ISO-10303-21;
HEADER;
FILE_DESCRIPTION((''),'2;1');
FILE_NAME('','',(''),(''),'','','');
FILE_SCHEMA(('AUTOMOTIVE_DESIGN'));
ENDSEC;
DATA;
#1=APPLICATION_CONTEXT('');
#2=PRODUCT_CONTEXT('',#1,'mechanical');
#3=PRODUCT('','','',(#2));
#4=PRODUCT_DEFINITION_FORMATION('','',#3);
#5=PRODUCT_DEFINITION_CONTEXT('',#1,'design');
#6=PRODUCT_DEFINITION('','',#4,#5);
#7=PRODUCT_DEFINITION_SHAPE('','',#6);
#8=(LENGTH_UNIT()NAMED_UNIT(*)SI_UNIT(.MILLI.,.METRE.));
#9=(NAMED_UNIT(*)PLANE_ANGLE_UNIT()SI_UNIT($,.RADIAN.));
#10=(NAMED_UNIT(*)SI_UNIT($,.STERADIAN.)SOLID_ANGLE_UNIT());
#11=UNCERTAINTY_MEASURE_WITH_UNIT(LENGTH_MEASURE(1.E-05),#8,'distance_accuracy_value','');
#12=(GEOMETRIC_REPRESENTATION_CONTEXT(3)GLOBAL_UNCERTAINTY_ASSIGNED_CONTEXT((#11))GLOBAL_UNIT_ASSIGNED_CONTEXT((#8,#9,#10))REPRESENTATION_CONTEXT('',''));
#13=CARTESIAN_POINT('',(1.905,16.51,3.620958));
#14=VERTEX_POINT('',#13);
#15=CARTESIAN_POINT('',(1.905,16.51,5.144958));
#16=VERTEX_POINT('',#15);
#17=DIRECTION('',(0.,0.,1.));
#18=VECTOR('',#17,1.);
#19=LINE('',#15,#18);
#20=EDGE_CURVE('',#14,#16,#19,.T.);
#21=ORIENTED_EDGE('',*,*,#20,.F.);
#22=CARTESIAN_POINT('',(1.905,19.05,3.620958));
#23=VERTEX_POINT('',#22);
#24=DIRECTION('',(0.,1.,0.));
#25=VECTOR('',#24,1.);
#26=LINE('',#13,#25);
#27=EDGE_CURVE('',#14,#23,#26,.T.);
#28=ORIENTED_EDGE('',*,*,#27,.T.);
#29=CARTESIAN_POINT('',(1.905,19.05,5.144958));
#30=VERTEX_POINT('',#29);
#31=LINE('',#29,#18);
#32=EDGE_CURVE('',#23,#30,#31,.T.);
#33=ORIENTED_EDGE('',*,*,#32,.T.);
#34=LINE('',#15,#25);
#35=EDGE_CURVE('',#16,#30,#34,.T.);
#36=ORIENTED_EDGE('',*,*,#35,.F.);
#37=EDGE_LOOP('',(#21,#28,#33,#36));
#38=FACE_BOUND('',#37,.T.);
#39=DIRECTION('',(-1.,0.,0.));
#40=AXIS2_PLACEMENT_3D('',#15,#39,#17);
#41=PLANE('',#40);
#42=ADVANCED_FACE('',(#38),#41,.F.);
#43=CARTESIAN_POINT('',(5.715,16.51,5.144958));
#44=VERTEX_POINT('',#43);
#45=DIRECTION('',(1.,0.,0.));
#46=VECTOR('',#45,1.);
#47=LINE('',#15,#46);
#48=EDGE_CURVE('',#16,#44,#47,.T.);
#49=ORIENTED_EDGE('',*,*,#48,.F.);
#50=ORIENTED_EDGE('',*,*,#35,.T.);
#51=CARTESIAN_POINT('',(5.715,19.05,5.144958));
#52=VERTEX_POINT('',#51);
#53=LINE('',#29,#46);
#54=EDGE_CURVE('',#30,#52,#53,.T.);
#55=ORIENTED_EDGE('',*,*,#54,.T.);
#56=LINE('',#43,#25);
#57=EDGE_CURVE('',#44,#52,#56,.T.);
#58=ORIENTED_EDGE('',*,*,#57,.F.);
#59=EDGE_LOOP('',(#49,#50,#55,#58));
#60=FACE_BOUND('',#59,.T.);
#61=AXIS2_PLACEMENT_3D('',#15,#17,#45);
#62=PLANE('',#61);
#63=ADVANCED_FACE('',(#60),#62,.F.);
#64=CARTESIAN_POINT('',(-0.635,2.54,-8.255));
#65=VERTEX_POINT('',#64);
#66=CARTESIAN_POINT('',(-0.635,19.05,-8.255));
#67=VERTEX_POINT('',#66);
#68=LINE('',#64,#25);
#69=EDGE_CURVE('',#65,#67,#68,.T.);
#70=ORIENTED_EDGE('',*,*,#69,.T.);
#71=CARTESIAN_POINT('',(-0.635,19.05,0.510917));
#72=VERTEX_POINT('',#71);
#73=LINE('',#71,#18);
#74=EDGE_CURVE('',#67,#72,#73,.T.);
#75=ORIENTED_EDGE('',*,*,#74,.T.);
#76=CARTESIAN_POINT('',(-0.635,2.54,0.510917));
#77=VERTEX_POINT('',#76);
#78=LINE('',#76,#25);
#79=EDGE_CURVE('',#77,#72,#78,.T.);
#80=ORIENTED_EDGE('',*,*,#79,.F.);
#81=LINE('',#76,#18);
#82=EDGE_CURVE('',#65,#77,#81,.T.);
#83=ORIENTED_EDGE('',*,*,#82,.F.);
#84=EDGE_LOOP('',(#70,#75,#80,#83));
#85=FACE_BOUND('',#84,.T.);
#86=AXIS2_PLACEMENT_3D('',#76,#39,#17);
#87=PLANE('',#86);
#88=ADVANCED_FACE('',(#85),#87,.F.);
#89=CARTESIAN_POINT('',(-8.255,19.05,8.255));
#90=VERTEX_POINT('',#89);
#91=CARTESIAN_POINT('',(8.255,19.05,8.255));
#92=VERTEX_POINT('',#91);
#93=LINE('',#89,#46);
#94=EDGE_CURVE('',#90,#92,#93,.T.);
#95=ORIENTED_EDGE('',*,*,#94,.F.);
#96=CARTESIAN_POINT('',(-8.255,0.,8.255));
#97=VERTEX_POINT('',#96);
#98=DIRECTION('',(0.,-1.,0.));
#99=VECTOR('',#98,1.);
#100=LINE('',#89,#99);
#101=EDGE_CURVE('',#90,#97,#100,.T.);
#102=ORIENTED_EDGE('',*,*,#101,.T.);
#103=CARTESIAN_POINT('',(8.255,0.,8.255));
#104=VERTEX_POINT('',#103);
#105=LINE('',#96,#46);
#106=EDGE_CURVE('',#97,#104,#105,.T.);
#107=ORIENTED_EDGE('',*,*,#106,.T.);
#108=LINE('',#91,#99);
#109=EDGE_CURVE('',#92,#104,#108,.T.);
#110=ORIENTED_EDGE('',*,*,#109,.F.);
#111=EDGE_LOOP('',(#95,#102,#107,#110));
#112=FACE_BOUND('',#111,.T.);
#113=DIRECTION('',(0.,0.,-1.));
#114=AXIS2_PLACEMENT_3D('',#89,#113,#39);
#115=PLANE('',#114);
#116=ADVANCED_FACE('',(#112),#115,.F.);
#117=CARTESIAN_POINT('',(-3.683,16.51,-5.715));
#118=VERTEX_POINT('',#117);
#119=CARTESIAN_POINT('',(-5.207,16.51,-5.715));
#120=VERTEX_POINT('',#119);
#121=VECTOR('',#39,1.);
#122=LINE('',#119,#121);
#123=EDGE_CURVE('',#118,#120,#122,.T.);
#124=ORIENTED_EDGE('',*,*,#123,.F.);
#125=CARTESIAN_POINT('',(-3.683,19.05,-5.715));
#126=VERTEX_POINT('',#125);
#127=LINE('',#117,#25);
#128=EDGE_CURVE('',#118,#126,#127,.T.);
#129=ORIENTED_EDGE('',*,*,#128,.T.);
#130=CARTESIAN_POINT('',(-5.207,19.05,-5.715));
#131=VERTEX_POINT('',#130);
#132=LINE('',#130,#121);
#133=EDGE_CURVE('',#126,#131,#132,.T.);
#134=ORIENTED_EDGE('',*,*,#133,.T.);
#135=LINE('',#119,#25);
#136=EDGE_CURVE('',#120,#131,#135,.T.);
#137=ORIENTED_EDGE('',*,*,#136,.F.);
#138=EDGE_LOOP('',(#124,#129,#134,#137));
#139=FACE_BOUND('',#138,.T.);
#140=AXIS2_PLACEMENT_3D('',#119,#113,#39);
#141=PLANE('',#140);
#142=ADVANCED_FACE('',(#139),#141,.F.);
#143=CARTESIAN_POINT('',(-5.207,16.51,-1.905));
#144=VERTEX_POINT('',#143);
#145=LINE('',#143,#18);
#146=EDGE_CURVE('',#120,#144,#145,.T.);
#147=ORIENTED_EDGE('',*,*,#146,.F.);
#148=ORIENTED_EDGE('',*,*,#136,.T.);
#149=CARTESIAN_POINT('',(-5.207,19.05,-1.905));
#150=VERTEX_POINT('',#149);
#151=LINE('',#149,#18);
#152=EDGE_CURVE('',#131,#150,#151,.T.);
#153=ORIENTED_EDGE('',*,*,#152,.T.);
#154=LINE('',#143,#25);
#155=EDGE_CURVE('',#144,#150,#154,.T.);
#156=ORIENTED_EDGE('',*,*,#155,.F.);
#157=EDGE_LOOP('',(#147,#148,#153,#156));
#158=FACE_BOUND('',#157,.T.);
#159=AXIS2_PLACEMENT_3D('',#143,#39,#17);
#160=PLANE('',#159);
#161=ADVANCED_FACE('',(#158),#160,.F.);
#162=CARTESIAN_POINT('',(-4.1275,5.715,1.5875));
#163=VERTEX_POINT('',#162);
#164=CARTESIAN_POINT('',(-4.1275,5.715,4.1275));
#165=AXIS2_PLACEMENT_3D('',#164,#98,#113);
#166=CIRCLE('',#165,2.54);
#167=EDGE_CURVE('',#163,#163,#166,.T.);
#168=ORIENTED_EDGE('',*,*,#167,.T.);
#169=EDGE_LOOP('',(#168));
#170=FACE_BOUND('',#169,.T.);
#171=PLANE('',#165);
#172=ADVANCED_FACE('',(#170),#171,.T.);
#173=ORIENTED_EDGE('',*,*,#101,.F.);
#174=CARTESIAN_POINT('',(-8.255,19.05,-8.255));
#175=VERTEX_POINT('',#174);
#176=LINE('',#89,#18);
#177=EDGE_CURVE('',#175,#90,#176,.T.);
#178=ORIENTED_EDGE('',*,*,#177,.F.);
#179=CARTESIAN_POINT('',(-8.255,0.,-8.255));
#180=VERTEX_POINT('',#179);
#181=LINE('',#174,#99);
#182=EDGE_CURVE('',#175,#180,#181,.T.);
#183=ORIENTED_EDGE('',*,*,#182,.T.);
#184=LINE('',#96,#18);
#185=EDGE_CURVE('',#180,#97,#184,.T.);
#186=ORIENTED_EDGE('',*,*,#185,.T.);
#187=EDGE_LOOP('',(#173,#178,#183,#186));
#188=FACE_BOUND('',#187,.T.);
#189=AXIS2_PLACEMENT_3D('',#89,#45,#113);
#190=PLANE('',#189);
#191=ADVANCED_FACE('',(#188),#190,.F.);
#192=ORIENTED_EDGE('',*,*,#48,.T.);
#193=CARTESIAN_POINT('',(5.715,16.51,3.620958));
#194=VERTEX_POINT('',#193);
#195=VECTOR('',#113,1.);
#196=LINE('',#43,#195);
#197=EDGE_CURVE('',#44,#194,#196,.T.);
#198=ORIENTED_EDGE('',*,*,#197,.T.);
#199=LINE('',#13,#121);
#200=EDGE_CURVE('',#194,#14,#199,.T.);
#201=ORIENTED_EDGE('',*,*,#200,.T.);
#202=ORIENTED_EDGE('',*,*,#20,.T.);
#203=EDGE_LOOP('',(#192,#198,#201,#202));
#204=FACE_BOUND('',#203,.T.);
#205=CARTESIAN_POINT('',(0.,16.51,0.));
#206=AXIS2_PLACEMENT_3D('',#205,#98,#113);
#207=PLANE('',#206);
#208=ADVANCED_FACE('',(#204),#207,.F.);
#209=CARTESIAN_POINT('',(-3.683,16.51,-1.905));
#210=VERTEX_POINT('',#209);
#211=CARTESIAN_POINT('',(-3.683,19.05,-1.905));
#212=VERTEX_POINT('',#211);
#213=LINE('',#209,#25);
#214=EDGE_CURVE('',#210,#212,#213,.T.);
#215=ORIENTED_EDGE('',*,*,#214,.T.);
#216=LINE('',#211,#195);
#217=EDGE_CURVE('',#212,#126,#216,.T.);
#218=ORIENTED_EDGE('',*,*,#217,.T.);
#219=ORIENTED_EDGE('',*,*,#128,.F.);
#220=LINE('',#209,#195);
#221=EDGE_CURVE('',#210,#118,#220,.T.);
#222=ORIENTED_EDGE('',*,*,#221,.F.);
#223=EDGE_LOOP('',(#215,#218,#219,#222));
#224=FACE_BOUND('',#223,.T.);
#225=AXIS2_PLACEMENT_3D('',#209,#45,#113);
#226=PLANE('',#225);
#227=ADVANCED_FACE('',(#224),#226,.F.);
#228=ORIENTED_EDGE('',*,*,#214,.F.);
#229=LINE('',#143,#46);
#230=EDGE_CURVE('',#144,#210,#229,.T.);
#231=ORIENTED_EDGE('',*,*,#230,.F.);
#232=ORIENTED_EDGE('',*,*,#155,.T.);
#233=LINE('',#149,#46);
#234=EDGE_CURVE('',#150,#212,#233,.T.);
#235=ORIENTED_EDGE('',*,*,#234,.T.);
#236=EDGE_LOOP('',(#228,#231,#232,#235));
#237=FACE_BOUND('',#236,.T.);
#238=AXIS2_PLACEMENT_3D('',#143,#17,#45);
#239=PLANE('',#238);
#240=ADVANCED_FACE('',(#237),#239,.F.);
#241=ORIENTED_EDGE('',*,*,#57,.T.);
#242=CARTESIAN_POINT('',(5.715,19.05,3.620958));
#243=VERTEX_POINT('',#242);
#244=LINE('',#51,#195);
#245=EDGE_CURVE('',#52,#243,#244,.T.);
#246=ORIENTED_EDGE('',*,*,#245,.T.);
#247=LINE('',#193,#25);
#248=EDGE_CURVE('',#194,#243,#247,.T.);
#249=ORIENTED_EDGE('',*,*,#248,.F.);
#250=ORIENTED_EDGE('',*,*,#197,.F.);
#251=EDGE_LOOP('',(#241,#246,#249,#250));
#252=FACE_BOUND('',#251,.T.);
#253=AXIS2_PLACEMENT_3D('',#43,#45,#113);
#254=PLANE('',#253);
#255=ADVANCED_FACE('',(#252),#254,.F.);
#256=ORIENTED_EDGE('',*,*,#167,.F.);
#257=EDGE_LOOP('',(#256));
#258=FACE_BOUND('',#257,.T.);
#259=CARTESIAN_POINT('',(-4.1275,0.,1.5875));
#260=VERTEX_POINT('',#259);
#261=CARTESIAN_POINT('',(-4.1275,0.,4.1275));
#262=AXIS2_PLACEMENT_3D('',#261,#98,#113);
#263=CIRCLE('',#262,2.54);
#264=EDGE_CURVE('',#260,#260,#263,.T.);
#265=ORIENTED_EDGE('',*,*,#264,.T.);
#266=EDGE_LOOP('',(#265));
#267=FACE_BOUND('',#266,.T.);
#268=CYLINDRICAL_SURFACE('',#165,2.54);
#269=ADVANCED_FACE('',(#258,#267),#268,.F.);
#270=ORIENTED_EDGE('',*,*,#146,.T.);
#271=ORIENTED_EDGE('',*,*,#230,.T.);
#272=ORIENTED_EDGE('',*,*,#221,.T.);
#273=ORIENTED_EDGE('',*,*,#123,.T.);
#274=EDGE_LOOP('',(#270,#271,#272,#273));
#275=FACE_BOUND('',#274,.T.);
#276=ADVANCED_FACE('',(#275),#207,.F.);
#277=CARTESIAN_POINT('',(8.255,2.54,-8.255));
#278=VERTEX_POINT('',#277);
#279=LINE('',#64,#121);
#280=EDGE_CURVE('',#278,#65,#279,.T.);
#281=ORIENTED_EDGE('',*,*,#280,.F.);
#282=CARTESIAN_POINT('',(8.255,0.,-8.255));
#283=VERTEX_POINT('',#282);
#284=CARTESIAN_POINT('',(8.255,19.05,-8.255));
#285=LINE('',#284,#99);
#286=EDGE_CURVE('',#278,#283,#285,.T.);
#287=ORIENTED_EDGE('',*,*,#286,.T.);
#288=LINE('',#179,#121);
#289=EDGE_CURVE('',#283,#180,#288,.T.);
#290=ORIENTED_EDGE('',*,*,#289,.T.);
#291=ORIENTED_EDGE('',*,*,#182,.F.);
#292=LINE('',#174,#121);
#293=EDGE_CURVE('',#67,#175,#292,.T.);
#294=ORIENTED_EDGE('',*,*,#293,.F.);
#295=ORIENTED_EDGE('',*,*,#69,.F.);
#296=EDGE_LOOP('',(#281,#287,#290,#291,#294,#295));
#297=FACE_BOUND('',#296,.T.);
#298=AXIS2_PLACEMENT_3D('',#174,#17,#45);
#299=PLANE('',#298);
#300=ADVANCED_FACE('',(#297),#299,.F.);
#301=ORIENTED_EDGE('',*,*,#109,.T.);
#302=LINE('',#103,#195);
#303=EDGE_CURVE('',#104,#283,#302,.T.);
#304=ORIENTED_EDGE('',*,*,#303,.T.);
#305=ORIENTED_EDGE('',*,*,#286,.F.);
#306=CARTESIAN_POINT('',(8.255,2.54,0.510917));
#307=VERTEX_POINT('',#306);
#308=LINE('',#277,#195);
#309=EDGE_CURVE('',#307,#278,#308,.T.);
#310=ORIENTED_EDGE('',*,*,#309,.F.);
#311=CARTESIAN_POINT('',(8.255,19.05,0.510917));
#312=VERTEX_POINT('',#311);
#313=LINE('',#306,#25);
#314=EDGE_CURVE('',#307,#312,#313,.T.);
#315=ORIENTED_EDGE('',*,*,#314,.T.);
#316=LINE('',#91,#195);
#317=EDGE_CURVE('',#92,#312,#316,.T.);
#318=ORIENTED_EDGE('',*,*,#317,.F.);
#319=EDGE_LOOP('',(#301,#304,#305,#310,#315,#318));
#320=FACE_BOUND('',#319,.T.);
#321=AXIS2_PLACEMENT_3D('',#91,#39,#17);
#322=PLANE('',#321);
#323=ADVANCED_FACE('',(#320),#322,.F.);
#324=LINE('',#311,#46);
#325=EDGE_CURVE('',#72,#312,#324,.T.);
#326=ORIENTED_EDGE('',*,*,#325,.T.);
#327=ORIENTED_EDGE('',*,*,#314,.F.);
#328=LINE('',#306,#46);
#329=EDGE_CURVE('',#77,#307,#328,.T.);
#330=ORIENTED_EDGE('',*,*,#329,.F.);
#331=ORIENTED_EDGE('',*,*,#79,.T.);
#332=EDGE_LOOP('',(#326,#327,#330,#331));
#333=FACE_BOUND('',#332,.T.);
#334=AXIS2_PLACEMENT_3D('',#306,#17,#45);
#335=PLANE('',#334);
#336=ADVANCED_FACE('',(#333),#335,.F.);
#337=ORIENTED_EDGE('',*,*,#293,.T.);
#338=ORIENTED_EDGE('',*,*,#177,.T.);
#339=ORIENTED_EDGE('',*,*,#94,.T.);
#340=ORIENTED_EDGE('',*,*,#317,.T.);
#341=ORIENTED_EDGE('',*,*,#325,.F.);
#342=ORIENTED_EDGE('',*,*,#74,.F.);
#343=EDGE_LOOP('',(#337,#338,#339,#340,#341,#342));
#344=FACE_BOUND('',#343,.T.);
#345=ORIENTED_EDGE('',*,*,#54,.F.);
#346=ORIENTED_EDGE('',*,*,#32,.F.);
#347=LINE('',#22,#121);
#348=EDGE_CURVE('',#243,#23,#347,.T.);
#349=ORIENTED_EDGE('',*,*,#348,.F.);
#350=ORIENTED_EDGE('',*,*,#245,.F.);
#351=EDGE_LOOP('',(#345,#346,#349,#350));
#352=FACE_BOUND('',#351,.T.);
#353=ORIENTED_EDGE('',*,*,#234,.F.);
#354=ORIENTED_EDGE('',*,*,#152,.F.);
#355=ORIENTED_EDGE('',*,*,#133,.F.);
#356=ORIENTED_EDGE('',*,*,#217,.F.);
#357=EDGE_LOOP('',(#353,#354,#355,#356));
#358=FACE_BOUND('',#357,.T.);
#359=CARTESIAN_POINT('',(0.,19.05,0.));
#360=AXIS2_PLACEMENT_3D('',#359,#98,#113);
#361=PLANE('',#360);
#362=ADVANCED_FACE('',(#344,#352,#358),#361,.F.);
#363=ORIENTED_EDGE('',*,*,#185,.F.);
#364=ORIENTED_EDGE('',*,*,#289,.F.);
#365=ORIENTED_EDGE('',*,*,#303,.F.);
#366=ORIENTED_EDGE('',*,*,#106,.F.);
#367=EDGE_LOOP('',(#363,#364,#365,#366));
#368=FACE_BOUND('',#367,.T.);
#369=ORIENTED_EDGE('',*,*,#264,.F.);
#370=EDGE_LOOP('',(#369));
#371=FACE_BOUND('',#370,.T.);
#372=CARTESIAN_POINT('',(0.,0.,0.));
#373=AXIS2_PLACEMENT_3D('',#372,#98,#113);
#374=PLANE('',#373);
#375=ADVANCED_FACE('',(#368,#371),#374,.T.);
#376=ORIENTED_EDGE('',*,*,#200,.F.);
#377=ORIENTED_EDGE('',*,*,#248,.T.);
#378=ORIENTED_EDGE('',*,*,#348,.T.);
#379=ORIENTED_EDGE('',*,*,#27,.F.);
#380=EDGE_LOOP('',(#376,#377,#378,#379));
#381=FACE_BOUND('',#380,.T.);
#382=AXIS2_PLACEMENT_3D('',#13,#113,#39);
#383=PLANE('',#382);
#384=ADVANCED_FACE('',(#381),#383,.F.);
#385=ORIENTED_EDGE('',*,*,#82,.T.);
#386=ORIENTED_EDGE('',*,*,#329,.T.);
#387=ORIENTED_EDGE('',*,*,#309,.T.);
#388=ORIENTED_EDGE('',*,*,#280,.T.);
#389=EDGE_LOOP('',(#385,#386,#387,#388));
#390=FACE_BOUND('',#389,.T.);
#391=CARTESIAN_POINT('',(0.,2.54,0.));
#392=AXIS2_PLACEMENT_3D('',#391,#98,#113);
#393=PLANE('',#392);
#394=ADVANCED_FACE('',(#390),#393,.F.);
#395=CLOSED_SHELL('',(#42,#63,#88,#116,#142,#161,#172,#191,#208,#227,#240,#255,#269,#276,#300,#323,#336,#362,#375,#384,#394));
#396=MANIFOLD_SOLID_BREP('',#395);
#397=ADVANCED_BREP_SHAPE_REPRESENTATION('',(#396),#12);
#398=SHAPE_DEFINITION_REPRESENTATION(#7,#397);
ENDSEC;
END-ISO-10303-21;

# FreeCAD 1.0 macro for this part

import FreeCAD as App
import Part
import Sketcher
Q = App.Units.Quantity

doc = App.newDocument("Part")
params = doc.addObject("Spreadsheet::Sheet", "Params")
for row, (alias, value) in enumerate([
    ("sketch1_width", "0.65 in"),
    ("pad1_length", "0.75 in"),
    ("sketch2_diameter", "0.2 in"),
    ("pocket1_length", "0.225 in"),
    ("sketch3_width", "0.35 in"),
    ("pocket2_length", "0.65 in"),
    ("sketch4_width", "0.06 in"),
    ("sketch4_width2", "0.15 in"),
    ("pocket3_length", "0.1 in"),
], start=1):
    params.set(f"A{row}", alias)
    params.set(f"B{row}", "=" + value)
    params.setAlias(f"B{row}", alias)

body = doc.addObject("PartDesign::Body", "Body")

sketch1 = doc.addObject("Sketcher::SketchObject", "Sketch")
body.addObject(sketch1)
sketch1.AttachmentSupport = (doc.XZ_Plane, [""])
sketch1.MapMode = "FlatFace"
sketch1.addGeometry([
    Part.LineSegment(App.Vector(-8.255, -8.255, 0), App.Vector(-8.255, 8.255, 0)),
    Part.LineSegment(App.Vector(-8.255, 8.255, 0), App.Vector(8.255, 8.255, 0)),
    Part.LineSegment(App.Vector(8.255, 8.255, 0), App.Vector(8.255, -8.255, 0)),
    Part.LineSegment(App.Vector(8.255, -8.255, 0), App.Vector(-8.255, -8.255, 0)),
], False)
sketch1.addConstraint([
    Sketcher.Constraint("Coincident", 0, 2, 1, 1),
    Sketcher.Constraint("Coincident", 1, 2, 2, 1),
    Sketcher.Constraint("Coincident", 2, 2, 3, 1),
    Sketcher.Constraint("Coincident", 3, 2, 0, 1),
    Sketcher.Constraint("Vertical", 0),
    Sketcher.Constraint("Horizontal", 1),
    Sketcher.Constraint("Vertical", 2),
    Sketcher.Constraint("Horizontal", 3),
    Sketcher.Constraint("Symmetric", 0, 2, 2, 2, -1, 1),
    Sketcher.Constraint("Equal", 3, 0),
    Sketcher.Constraint("DistanceX", 1, 1, 1, 2, Q("0.65 in")),
])
sketch1.setExpression("Constraints[10]", "Params.sketch1_width")
pad1 = doc.addObject("PartDesign::Pad", "Pad")
body.addObject(pad1)
pad1.Profile = sketch1
pad1.setExpression("Length", "Params.pad1_length")
pad1.Reversed = True

sketch2 = doc.addObject("Sketcher::SketchObject", "Sketch001")
body.addObject(sketch2)
sketch2.AttachmentSupport = (doc.XZ_Plane, [""])
sketch2.MapMode = "FlatFace"
sketch2.addGeometry(Part.Circle(App.Vector(-4.1275, 4.1275, 0), App.Vector(0, 0, 1), 2.54), False)
sketch2.addConstraint([
    Sketcher.Constraint("Diameter", 0, Q("0.2 in")),
    Sketcher.Constraint("DistanceX", 0, 3, -1, 1, Q("0.1625 in")),
    Sketcher.Constraint("DistanceY", -1, 1, 0, 3, Q("0.1625 in")),
])
sketch2.setExpression("Constraints[0]", "Params.sketch2_diameter")
pocket1 = doc.addObject("PartDesign::Pocket", "Pocket")
body.addObject(pocket1)
pocket1.Profile = sketch2
pocket1.setExpression("Length", "Params.pocket1_length")

sketch3 = doc.addObject("Sketcher::SketchObject", "Sketch002")
body.addObject(sketch3)
sketch3.AttachmentSupport = (doc.XZ_Plane, [""])
sketch3.MapMode = "FlatFace"
sketch3.AttachmentOffset = App.Placement(App.Vector(0, 0, -0.75 * 25.4), App.Rotation())
sketch3.addGeometry([
    Part.LineSegment(App.Vector(-0.635, -8.255, 0), App.Vector(-0.635, 0.510917, 0)),
    Part.LineSegment(App.Vector(-0.635, 0.510917, 0), App.Vector(8.255, 0.510917, 0)),
    Part.LineSegment(App.Vector(8.255, 0.510917, 0), App.Vector(8.255, -8.255, 0)),
    Part.LineSegment(App.Vector(8.255, -8.255, 0), App.Vector(-0.635, -8.255, 0)),
], False)
sketch3.addConstraint([
    Sketcher.Constraint("Coincident", 0, 2, 1, 1),
    Sketcher.Constraint("Coincident", 1, 2, 2, 1),
    Sketcher.Constraint("Coincident", 2, 2, 3, 1),
    Sketcher.Constraint("Coincident", 3, 2, 0, 1),
    Sketcher.Constraint("Vertical", 0),
    Sketcher.Constraint("Horizontal", 1),
    Sketcher.Constraint("Vertical", 2),
    Sketcher.Constraint("Horizontal", 3),
    Sketcher.Constraint("DistanceX", 1, 1, 1, 2, Q("0.35 in")),
    Sketcher.Constraint("DistanceX", 0, 2, -1, 1, Q("0.025 in")),
    Sketcher.Constraint("DistanceY", 2, 2, -1, 1, Q("0.325 in")),
    Sketcher.Constraint("DistanceY", 0, 1, 0, 2, 8.765917),
])
sketch3.setExpression("Constraints[8]", "Params.sketch3_width")
pocket2 = doc.addObject("PartDesign::Pocket", "Pocket001")
body.addObject(pocket2)
pocket2.Profile = sketch3
pocket2.setExpression("Length", "Params.pocket2_length")
pocket2.Reversed = True

sketch4 = doc.addObject("Sketcher::SketchObject", "Sketch003")
body.addObject(sketch4)
sketch4.AttachmentSupport = (doc.XZ_Plane, [""])
sketch4.MapMode = "FlatFace"
sketch4.AttachmentOffset = App.Placement(App.Vector(0, 0, -0.75 * 25.4), App.Rotation())
sketch4.addGeometry([
    Part.LineSegment(App.Vector(-5.207, -5.715, 0), App.Vector(-5.207, -1.905, 0)),
    Part.LineSegment(App.Vector(-5.207, -1.905, 0), App.Vector(-3.683, -1.905, 0)),
    Part.LineSegment(App.Vector(-3.683, -1.905, 0), App.Vector(-3.683, -5.715, 0)),
    Part.LineSegment(App.Vector(-3.683, -5.715, 0), App.Vector(-5.207, -5.715, 0)),
    Part.LineSegment(App.Vector(1.905, 3.620958, 0), App.Vector(1.905, 5.144958, 0)),
    Part.LineSegment(App.Vector(1.905, 5.144958, 0), App.Vector(5.715, 5.144958, 0)),
    Part.LineSegment(App.Vector(5.715, 5.144958, 0), App.Vector(5.715, 3.620958, 0)),
    Part.LineSegment(App.Vector(5.715, 3.620958, 0), App.Vector(1.905, 3.620958, 0)),
], False)
sketch4.addConstraint([
    Sketcher.Constraint("Coincident", 0, 2, 1, 1),
    Sketcher.Constraint("Coincident", 1, 2, 2, 1),
    Sketcher.Constraint("Coincident", 2, 2, 3, 1),
    Sketcher.Constraint("Coincident", 3, 2, 0, 1),
    Sketcher.Constraint("Coincident", 4, 2, 5, 1),
    Sketcher.Constraint("Coincident", 5, 2, 6, 1),
    Sketcher.Constraint("Coincident", 6, 2, 7, 1),
    Sketcher.Constraint("Coincident", 7, 2, 4, 1),
    Sketcher.Constraint("Vertical", 0),
    Sketcher.Constraint("Horizontal", 1),
    Sketcher.Constraint("Vertical", 2),
    Sketcher.Constraint("Horizontal", 3),
    Sketcher.Constraint("Vertical", 4),
    Sketcher.Constraint("Horizontal", 5),
    Sketcher.Constraint("Vertical", 6),
    Sketcher.Constraint("Horizontal", 7),
    Sketcher.Constraint("Equal", 7, 0),
    Sketcher.Constraint("Equal", 3, 4),
    Sketcher.Constraint("DistanceX", 1, 1, 1, 2, Q("0.06 in")),
    Sketcher.Constraint("DistanceX", 5, 1, 5, 2, Q("0.15 in")),
    Sketcher.Constraint("DistanceX", 1, 2, 4, 2, Q("0.22 in")),
    Sketcher.Constraint("DistanceX", 0, 2, -1, 1, Q("0.205 in")),
    Sketcher.Constraint("DistanceY", 0, 2, -1, 1, Q("0.075 in")),
    Sketcher.Constraint("DistanceY", -1, 1, 4, 2, 5.144958),
])
sketch4.setExpression("Constraints[18]", "Params.sketch4_width")
sketch4.setExpression("Constraints[19]", "Params.sketch4_width2")
pocket3 = doc.addObject("PartDesign::Pocket", "Pocket002")
body.addObject(pocket3)
pocket3.Profile = sketch4
pocket3.setExpression("Length", "Params.pocket3_length")
pocket3.Reversed = True

doc.recompute()
